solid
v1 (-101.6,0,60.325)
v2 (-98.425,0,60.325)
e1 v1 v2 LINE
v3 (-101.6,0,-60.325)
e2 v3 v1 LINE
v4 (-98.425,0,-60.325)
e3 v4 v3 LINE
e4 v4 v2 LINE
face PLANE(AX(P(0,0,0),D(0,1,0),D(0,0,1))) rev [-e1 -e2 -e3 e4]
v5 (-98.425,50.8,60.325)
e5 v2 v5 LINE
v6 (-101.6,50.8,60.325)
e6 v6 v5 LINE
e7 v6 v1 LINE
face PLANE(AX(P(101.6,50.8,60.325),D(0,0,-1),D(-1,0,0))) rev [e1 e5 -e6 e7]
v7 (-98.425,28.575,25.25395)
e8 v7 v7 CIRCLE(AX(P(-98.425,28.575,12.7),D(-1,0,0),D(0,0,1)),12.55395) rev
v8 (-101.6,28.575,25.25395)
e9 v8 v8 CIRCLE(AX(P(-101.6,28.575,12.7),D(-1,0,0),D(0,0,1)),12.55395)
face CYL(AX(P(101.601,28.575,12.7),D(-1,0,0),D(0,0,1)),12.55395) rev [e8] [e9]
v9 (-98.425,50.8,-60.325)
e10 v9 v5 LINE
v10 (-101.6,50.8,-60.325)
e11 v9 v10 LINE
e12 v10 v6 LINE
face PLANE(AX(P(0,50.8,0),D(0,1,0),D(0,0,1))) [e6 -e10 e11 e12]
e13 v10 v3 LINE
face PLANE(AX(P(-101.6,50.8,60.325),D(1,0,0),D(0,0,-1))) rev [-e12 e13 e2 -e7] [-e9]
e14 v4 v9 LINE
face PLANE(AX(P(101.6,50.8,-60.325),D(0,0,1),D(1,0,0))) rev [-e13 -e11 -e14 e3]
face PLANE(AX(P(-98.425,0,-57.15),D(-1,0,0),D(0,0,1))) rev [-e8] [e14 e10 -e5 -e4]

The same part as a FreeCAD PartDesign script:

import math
import FreeCAD as App
import Part
import Sketcher
Q = App.Units.Quantity

doc = App.newDocument("Part")
params = doc.addObject("Spreadsheet::Sheet", "Params")
for row, (alias, value) in enumerate([
    ("sketch1_width", "8 in"),
    ("sketch1_height", "4.75 in"),
    ("pad1_length", "2 in"),
    ("sketch2_height", "4.5 in"),
    ("sketch2_width", "7.75 in"),
    ("sketch3_width", "8 in"),
    ("sketch3_height", "4.5 in"),
    ("sketch3_width2", "7.75 in"),
    ("sketch3_height2", "4.75 in"),
    ("pad2_length", "0.25 in"),
    ("sketch8_height", "4.75 in"),
    ("sketch8_width", "7.875 in"),
], start=1):
    params.set(f"A{row}", alias)
    params.set(f"B{row}", "=" + value)
    params.setAlias(f"B{row}", alias)

body = doc.addObject("PartDesign::Body", "Body")

# Sketch on XZ plane
sketch1 = body.newObject("Sketcher::SketchObject", "Sketch")
sketch1.AttachmentSupport = (doc.getObject("XZ_Plane"), [""])
sketch1.MapMode = "FlatFace"
sketch1.addGeometry(Part.LineSegment(App.Vector(-101.6, -60.325, 0), App.Vector(-101.6, 60.325, 0)), False)
sketch1.addGeometry(Part.LineSegment(App.Vector(-101.6, 60.325, 0), App.Vector(101.6, 60.325, 0)), False)
sketch1.addGeometry(Part.LineSegment(App.Vector(101.6, 60.325, 0), App.Vector(101.6, -60.325, 0)), False)
sketch1.addGeometry(Part.LineSegment(App.Vector(101.6, -60.325, 0), App.Vector(-101.6, -60.325, 0)), False)
sketch1.addConstraint(Sketcher.Constraint("Coincident", 0, 2, 1, 1))
sketch1.addConstraint(Sketcher.Constraint("Coincident", 1, 2, 2, 1))
sketch1.addConstraint(Sketcher.Constraint("Coincident", 2, 2, 3, 1))
sketch1.addConstraint(Sketcher.Constraint("Coincident", 3, 2, 0, 1))
sketch1.addConstraint(Sketcher.Constraint("Vertical", 0))
sketch1.addConstraint(Sketcher.Constraint("Horizontal", 1))
sketch1.addConstraint(Sketcher.Constraint("Vertical", 2))
sketch1.addConstraint(Sketcher.Constraint("Horizontal", 3))
sketch1.addConstraint(Sketcher.Constraint("Symmetric", 0, 2, 2, 2, -1, 1))
sketch1.addConstraint(Sketcher.Constraint("DistanceX", 1, 1, 1, 2, Q("8 in")))
sketch1.addConstraint(Sketcher.Constraint("DistanceY", 0, 1, 0, 2, Q("4.75 in")))
sketch1.setExpression("Constraints[9]", "Params.sketch1_width")
sketch1.setExpression("Constraints[10]", "Params.sketch1_height")
pad1 = body.newObject("PartDesign::Pad", "Pad")
pad1.Profile = sketch1
pad1.setExpression("Length", "Params.pad1_length")
pad1.Reversed = True

# Sketch on XZ plane
sketch2 = body.newObject("Sketcher::SketchObject", "Sketch001")
sketch2.AttachmentSupport = (doc.getObject("XZ_Plane"), [""])
sketch2.MapMode = "FlatFace"
sketch2.AttachmentOffset = App.Placement(App.Vector(0, 0, -2 * 25.4), App.Rotation())
sketch2.addGeometry(Part.LineSegment(App.Vector(-98.425, -57.15, 0), App.Vector(-98.425, 57.15, 0)), False)
sketch2.addGeometry(Part.LineSegment(App.Vector(-98.425, 57.15, 0), App.Vector(98.425, 57.15, 0)), False)
sketch2.addGeometry(Part.LineSegment(App.Vector(98.425, 57.15, 0), App.Vector(98.425, -57.15, 0)), False)
sketch2.addGeometry(Part.LineSegment(App.Vector(98.425, -57.15, 0), App.Vector(-98.425, -57.15, 0)), False)
sketch2.addConstraint(Sketcher.Constraint("Coincident", 0, 2, 1, 1))
sketch2.addConstraint(Sketcher.Constraint("Coincident", 1, 2, 2, 1))
sketch2.addConstraint(Sketcher.Constraint("Coincident", 2, 2, 3, 1))
sketch2.addConstraint(Sketcher.Constraint("Coincident", 3, 2, 0, 1))
sketch2.addConstraint(Sketcher.Constraint("Vertical", 0))
sketch2.addConstraint(Sketcher.Constraint("Horizontal", 1))
sketch2.addConstraint(Sketcher.Constraint("Vertical", 2))
sketch2.addConstraint(Sketcher.Constraint("Horizontal", 3))
sketch2.addConstraint(Sketcher.Constraint("Symmetric", 0, 2, 2, 2, -1, 1))
sketch2.addConstraint(Sketcher.Constraint("DistanceY", 0, 1, 0, 2, Q("4.5 in")))
sketch2.addConstraint(Sketcher.Constraint("DistanceX", 1, 1, 1, 2, Q("7.75 in")))
sketch2.setExpression("Constraints[9]", "Params.sketch2_height")
sketch2.setExpression("Constraints[10]", "Params.sketch2_width")
pocket1 = body.newObject("PartDesign::Pocket", "Pocket")
pocket1.Profile = sketch2
pocket1.Type = "ThroughAll"
pocket1.Reversed = True

# Sketch on XZ plane
sketch3 = body.newObject("Sketcher::SketchObject", "Sketch002")
sketch3.AttachmentSupport = (doc.getObject("XZ_Plane"), [""])
sketch3.MapMode = "FlatFace"
sketch3.AttachmentOffset = App.Placement(App.Vector(0, 0, -2 * 25.4), App.Rotation())
sketch3.addGeometry(Part.LineSegment(App.Vector(-101.6, -60.325, 0), App.Vector(-101.6, 60.325, 0)), False)
sketch3.addGeometry(Part.LineSegment(App.Vector(-101.6, 60.325, 0), App.Vector(101.6, 60.325, 0)), False)
sketch3.addGeometry(Part.LineSegment(App.Vector(101.6, 60.325, 0), App.Vector(101.6, -60.325, 0)), False)
sketch3.addGeometry(Part.LineSegment(App.Vector(101.6, -60.325, 0), App.Vector(-101.6, -60.325, 0)), False)
sketch3.addGeometry(Part.LineSegment(App.Vector(98.425, 57.15, 0), App.Vector(-98.425, 57.15, 0)), False)
sketch3.addGeometry(Part.LineSegment(App.Vector(-98.425, 57.15, 0), App.Vector(-98.425, -57.15, 0)), False)
sketch3.addGeometry(Part.LineSegment(App.Vector(-98.425, -57.15, 0), App.Vector(98.425, -57.15, 0)), False)
sketch3.addGeometry(Part.LineSegment(App.Vector(98.425, -57.15, 0), App.Vector(98.425, 57.15, 0)), False)
sketch3.addConstraint(Sketcher.Constraint("Coincident", 0, 2, 1, 1))
sketch3.addConstraint(Sketcher.Constraint("Coincident", 1, 2, 2, 1))
sketch3.addConstraint(Sketcher.Constraint("Coincident", 2, 2, 3, 1))
sketch3.addConstraint(Sketcher.Constraint("Coincident", 3, 2, 0, 1))
sketch3.addConstraint(Sketcher.Constraint("Coincident", 4, 2, 5, 1))
sketch3.addConstraint(Sketcher.Constraint("Coincident", 5, 2, 6, 1))
sketch3.addConstraint(Sketcher.Constraint("Coincident", 6, 2, 7, 1))
sketch3.addConstraint(Sketcher.Constraint("Coincident", 7, 2, 4, 1))
sketch3.addConstraint(Sketcher.Constraint("Vertical", 0))
sketch3.addConstraint(Sketcher.Constraint("Horizontal", 1))
sketch3.addConstraint(Sketcher.Constraint("Vertical", 2))
sketch3.addConstraint(Sketcher.Constraint("Horizontal", 3))
sketch3.addConstraint(Sketcher.Constraint("Horizontal", 4))
sketch3.addConstraint(Sketcher.Constraint("Vertical", 5))
sketch3.addConstraint(Sketcher.Constraint("Horizontal", 6))
sketch3.addConstraint(Sketcher.Constraint("Vertical", 7))
sketch3.addConstraint(Sketcher.Constraint("Symmetric", 0, 2, 2, 2, -1, 1))
sketch3.addConstraint(Sketcher.Constraint("Symmetric", 4, 2, 6, 2, -1, 1))
sketch3.addConstraint(Sketcher.Constraint("DistanceX", 1, 1, 1, 2, Q("8 in")))
sketch3.addConstraint(Sketcher.Constraint("DistanceY", 5, 2, 5, 1, Q("4.5 in")))
sketch3.addConstraint(Sketcher.Constraint("DistanceX", 4, 2, 4, 1, Q("7.75 in")))
sketch3.addConstraint(Sketcher.Constraint("DistanceY", 0, 1, 0, 2, Q("4.75 in")))
sketch3.setExpression("Constraints[18]", "Params.sketch3_width")
sketch3.setExpression("Constraints[19]", "Params.sketch3_height")
sketch3.setExpression("Constraints[20]", "Params.sketch3_width2")
sketch3.setExpression("Constraints[21]", "Params.sketch3_height2")
pad2 = body.newObject("PartDesign::Pad", "Pad001")
pad2.Profile = sketch3
pad2.setExpression("Length", "Params.pad2_length")

# Sketch on XY plane
sketch4 = body.newObject("Sketcher::SketchObject", "Sketch003")
sketch4.AttachmentSupport = (doc.getObject("XY_Plane"), [""])
sketch4.MapMode = "FlatFace"
sketch4.AttachmentOffset = App.Placement(App.Vector(0, 0, 2.375 * 25.4), App.Rotation())
sketch4.addGeometry(Part.ArcOfCircle(Part.Circle(App.Vector(-76.2, 22.225, 0), App.Vector(0, 0, 1), 10.2489), math.radians(0), math.radians(238.489048)), False)
sketch4.addGeometry(Part.LineSegment(App.Vector(-81.556706, 13.4874, 0), App.Vector(-70.843294, 13.4874, 0)), False)
sketch4.addGeometry(Part.ArcOfCircle(Part.Circle(App.Vector(-76.2, 22.225, 0), App.Vector(0, 0, 1), 10.2489), math.radians(-58.489048), math.radians(0)), False)
sketch4.addGeometry(Part.ArcOfCircle(Part.Circle(App.Vector(-25.4, 22.225, 0), App.Vector(0, 0, 1), 10.2489), math.radians(0), math.radians(238.489048)), False)
sketch4.addGeometry(Part.LineSegment(App.Vector(-30.756706, 13.4874, 0), App.Vector(-20.043294, 13.4874, 0)), False)
sketch4.addGeometry(Part.ArcOfCircle(Part.Circle(App.Vector(-25.4, 22.225, 0), App.Vector(0, 0, 1), 10.2489), math.radians(-58.489048), math.radians(0)), False)
sketch4.addGeometry(Part.ArcOfCircle(Part.Circle(App.Vector(25.4, 22.225, 0), App.Vector(0, 0, 1), 10.2489), math.radians(0), math.radians(238.489048)), False)
sketch4.addGeometry(Part.LineSegment(App.Vector(20.043294, 13.4874, 0), App.Vector(30.756706, 13.4874, 0)), False)
sketch4.addGeometry(Part.ArcOfCircle(Part.Circle(App.Vector(25.4, 22.225, 0), App.Vector(0, 0, 1), 10.2489), math.radians(-58.489048), math.radians(0)), False)
sketch4.addGeometry(Part.LineSegment(App.Vector(70.843294, 13.4874, 0), App.Vector(81.556706, 13.4874, 0)), False)
sketch4.addGeometry(Part.ArcOfCircle(Part.Circle(App.Vector(76.2, 22.225, 0), App.Vector(0, 0, 1), 10.2489), math.radians(-58.489048), math.radians(0)), False)
sketch4.addGeometry(Part.ArcOfCircle(Part.Circle(App.Vector(76.2, 22.225, 0), App.Vector(0, 0, 1), 10.2489), math.radians(0), math.radians(238.489048)), False)
sketch4.addConstraint(Sketcher.Constraint("Coincident", 0, 2, 1, 1))
sketch4.addConstraint(Sketcher.Constraint("Coincident", 1, 2, 2, 1))
sketch4.addConstraint(Sketcher.Constraint("Tangent", 2, 2, 0, 1))
sketch4.addConstraint(Sketcher.Constraint("Coincident", 3, 2, 4, 1))
sketch4.addConstraint(Sketcher.Constraint("Coincident", 4, 2, 5, 1))
sketch4.addConstraint(Sketcher.Constraint("Tangent", 5, 2, 3, 1))
sketch4.addConstraint(Sketcher.Constraint("Coincident", 6, 2, 7, 1))
sketch4.addConstraint(Sketcher.Constraint("Coincident", 7, 2, 8, 1))
sketch4.addConstraint(Sketcher.Constraint("Tangent", 8, 2, 6, 1))
sketch4.addConstraint(Sketcher.Constraint("Coincident", 9, 2, 10, 1))
sketch4.addConstraint(Sketcher.Constraint("Tangent", 10, 2, 11, 1))
sketch4.addConstraint(Sketcher.Constraint("Coincident", 11, 2, 9, 1))
sketch4.addConstraint(Sketcher.Constraint("Horizontal", 1))
sketch4.addConstraint(Sketcher.Constraint("Horizontal", 4))
sketch4.addConstraint(Sketcher.Constraint("Horizontal", 7))
sketch4.addConstraint(Sketcher.Constraint("Horizontal", 9))
sketch4.addConstraint(Sketcher.Constraint("Equal", 0, 2))
sketch4.addConstraint(Sketcher.Constraint("Equal", 2, 3))
sketch4.addConstraint(Sketcher.Constraint("Equal", 3, 5))
sketch4.addConstraint(Sketcher.Constraint("Equal", 5, 6))
sketch4.addConstraint(Sketcher.Constraint("Equal", 6, 8))
sketch4.addConstraint(Sketcher.Constraint("Equal", 8, 10))
sketch4.addConstraint(Sketcher.Constraint("Equal", 10, 11))
sketch4.addConstraint(Sketcher.Constraint("Symmetric", 3, 3, 6, 3, -2))
sketch4.addConstraint(Sketcher.Constraint("Symmetric", 0, 3, 10, 3, -2))
sketch4.addConstraint(Sketcher.Constraint("Horizontal", 2, 3, 3, 3))
sketch4.addConstraint(Sketcher.Constraint("Horizontal", 11, 3, 2, 2))
sketch4.addConstraint(Sketcher.Constraint("Horizontal", 1, 2, 3, 2))
sketch4.addConstraint(Sketcher.Constraint("Horizontal", 2, 2, 5, 2))
sketch4.addConstraint(Sketcher.Constraint("Horizontal", 4, 2, 6, 2))
sketch4.addConstraint(Sketcher.Constraint("Horizontal", 5, 2, 8, 2))
sketch4.addConstraint(Sketcher.Constraint("Horizontal", 7, 2, 9, 2))
sketch4.addConstraint(Sketcher.Constraint("Horizontal", 8, 2, 10, 2))
sketch4.addConstraint(Sketcher.Constraint("DistanceX", 0, 3, -1, 1, Q("3 in")))
sketch4.addConstraint(Sketcher.Constraint("DistanceX", 3, 3, -1, 1, Q("1 in")))
sketch4.addConstraint(Sketcher.Constraint("Radius", 0, Q("0.4035 in")))
sketch4.addConstraint(Sketcher.Constraint("DistanceY", -1, 1, 0, 3, Q("0.875 in")))
sketch4.addConstraint(Sketcher.Constraint("DistanceY", -1, 1, 0, 2, Q("0.531 in")))
pocket2 = body.newObject("PartDesign::Pocket", "Pocket001")
pocket2.Profile = sketch4
pocket2.Type = "ThroughAll"

# Sketch on YZ plane
sketch5 = body.newObject("Sketcher::SketchObject", "Sketch004")
sketch5.AttachmentSupport = (doc.getObject("YZ_Plane"), [""])
sketch5.MapMode = "FlatFace"
sketch5.AttachmentOffset = App.Placement(App.Vector(0, 0, 4 * 25.4), App.Rotation())
sketch5.addGeometry(Part.ArcOfCircle(Part.Circle(App.Vector(22.225, 22.225, 0), App.Vector(0, 0, 1), 10.2489), math.radians(-148.489048), math.radians(148.489048)), False)
sketch5.addGeometry(Part.LineSegment(App.Vector(13.4874, 27.581706, 0), App.Vector(13.4874, 16.868294, 0)), False)
sketch5.addConstraint(Sketcher.Constraint("Coincident", 0, 1, 1, 2))
sketch5.addConstraint(Sketcher.Constraint("Coincident", 1, 1, 0, 2))
sketch5.addConstraint(Sketcher.Constraint("Vertical", 1))
sketch5.addConstraint(Sketcher.Constraint("Radius", 0, Q("0.4035 in")))
sketch5.addConstraint(Sketcher.Constraint("DistanceX", -1, 1, 0, 3, Q("0.875 in")))
sketch5.addConstraint(Sketcher.Constraint("DistanceY", -1, 1, 0, 3, Q("0.875 in")))
sketch5.addConstraint(Sketcher.Constraint("DistanceX", -1, 1, 0, 1, Q("0.531 in")))
pocket3 = body.newObject("PartDesign::Pocket", "Pocket002")
pocket3.Profile = sketch5
pocket3.Type = "UpToFirst"

# Sketch on YZ plane
sketch6 = body.newObject("Sketcher::SketchObject", "Sketch005")
sketch6.AttachmentSupport = (doc.getObject("YZ_Plane"), [""])
sketch6.MapMode = "FlatFace"
sketch6.AttachmentOffset = App.Placement(App.Vector(0, 0, 4 * 25.4), App.Rotation())
sketch6.addGeometry(Part.ArcOfCircle(Part.Circle(App.Vector(22.225, -22.225, 0), App.Vector(0, 0, 1), 10.2489), math.radians(-148.489048), math.radians(148.489048)), False)
sketch6.addGeometry(Part.LineSegment(App.Vector(13.4874, -16.868294, 0), App.Vector(13.4874, -27.581706, 0)), False)
sketch6.addConstraint(Sketcher.Constraint("Coincident", 0, 1, 1, 2))
sketch6.addConstraint(Sketcher.Constraint("Coincident", 1, 1, 0, 2))
sketch6.addConstraint(Sketcher.Constraint("Vertical", 1))
sketch6.addConstraint(Sketcher.Constraint("Radius", 0, Q("0.4035 in")))
sketch6.addConstraint(Sketcher.Constraint("DistanceX", -1, 1, 0, 3, Q("0.875 in")))
sketch6.addConstraint(Sketcher.Constraint("DistanceY", 0, 3, -1, 1, Q("0.875 in")))
sketch6.addConstraint(Sketcher.Constraint("DistanceX", -1, 1, 0, 1, Q("0.531 in")))
pocket4 = body.newObject("PartDesign::Pocket", "Pocket003")
pocket4.Profile = sketch6
pocket4.Type = "UpToFirst"

# Sketch on YZ plane
sketch7 = body.newObject("Sketcher::SketchObject", "Sketch006")
sketch7.AttachmentSupport = (doc.getObject("YZ_Plane"), [""])
sketch7.MapMode = "FlatFace"
sketch7.AttachmentOffset = App.Placement(App.Vector(0, 0, -4 * 25.4), App.Rotation())
sketch7.addGeometry(Part.Circle(App.Vector(28.575, 12.7, 0), App.Vector(0, 0, 1), 12.55395), False)
sketch7.addConstraint(Sketcher.Constraint("Diameter", 0, Q("0.9885 in")))
sketch7.addConstraint(Sketcher.Constraint("DistanceY", -1, 1, 0, 3, Q("0.5 in")))
sketch7.addConstraint(Sketcher.Constraint("DistanceX", -1, 1, 0, 3, Q("1.125 in")))
pocket5 = body.newObject("PartDesign::Pocket", "Pocket004")
pocket5.Profile = sketch7
pocket5.Type = "UpToFirst"
pocket5.Reversed = True

# Sketch on XZ plane
sketch8 = body.newObject("Sketcher::SketchObject", "Sketch007")
sketch8.AttachmentSupport = (doc.getObject("XZ_Plane"), [""])
sketch8.MapMode = "FlatFace"
sketch8.AttachmentOffset = App.Placement(App.Vector(0, 0, -2 * 25.4), App.Rotation())
sketch8.addGeometry(Part.LineSegment(App.Vector(-98.425, 60.325, 0), App.Vector(101.6, 60.325, 0)), False)
sketch8.addGeometry(Part.LineSegment(App.Vector(101.6, 60.325, 0), App.Vector(101.6, -60.325, 0)), False)
sketch8.addGeometry(Part.LineSegment(App.Vector(101.6, -60.325, 0), App.Vector(-98.425, -60.325, 0)), False)
sketch8.addGeometry(Part.LineSegment(App.Vector(-98.425, -60.325, 0), App.Vector(-98.425, 60.325, 0)), False)
sketch8.addConstraint(Sketcher.Constraint("Coincident", 0, 2, 1, 1))
sketch8.addConstraint(Sketcher.Constraint("Coincident", 1, 2, 2, 1))
sketch8.addConstraint(Sketcher.Constraint("Coincident", 2, 2, 3, 1))
sketch8.addConstraint(Sketcher.Constraint("Coincident", 3, 2, 0, 1))
sketch8.addConstraint(Sketcher.Constraint("Horizontal", 0))
sketch8.addConstraint(Sketcher.Constraint("Vertical", 1))
sketch8.addConstraint(Sketcher.Constraint("Horizontal", 2))
sketch8.addConstraint(Sketcher.Constraint("Vertical", 3))
sketch8.addConstraint(Sketcher.Constraint("DistanceX", -1, 1, 0, 2, Q("4 in")))
sketch8.addConstraint(Sketcher.Constraint("DistanceY", 1, 2, 1, 1, Q("4.75 in")))
sketch8.addConstraint(Sketcher.Constraint("DistanceX", 0, 1, 0, 2, Q("7.875 in")))
sketch8.addConstraint(Sketcher.Constraint("DistanceY", -1, 1, 0, 2, Q("2.375 in")))
sketch8.setExpression("Constraints[9]", "Params.sketch8_height")
sketch8.setExpression("Constraints[10]", "Params.sketch8_width")
pocket6 = body.newObject("PartDesign::Pocket", "Pocket005")
pocket6.Profile = sketch8
pocket6.Type = "ThroughAll"
pocket6.Reversed = True

doc.recompute()
